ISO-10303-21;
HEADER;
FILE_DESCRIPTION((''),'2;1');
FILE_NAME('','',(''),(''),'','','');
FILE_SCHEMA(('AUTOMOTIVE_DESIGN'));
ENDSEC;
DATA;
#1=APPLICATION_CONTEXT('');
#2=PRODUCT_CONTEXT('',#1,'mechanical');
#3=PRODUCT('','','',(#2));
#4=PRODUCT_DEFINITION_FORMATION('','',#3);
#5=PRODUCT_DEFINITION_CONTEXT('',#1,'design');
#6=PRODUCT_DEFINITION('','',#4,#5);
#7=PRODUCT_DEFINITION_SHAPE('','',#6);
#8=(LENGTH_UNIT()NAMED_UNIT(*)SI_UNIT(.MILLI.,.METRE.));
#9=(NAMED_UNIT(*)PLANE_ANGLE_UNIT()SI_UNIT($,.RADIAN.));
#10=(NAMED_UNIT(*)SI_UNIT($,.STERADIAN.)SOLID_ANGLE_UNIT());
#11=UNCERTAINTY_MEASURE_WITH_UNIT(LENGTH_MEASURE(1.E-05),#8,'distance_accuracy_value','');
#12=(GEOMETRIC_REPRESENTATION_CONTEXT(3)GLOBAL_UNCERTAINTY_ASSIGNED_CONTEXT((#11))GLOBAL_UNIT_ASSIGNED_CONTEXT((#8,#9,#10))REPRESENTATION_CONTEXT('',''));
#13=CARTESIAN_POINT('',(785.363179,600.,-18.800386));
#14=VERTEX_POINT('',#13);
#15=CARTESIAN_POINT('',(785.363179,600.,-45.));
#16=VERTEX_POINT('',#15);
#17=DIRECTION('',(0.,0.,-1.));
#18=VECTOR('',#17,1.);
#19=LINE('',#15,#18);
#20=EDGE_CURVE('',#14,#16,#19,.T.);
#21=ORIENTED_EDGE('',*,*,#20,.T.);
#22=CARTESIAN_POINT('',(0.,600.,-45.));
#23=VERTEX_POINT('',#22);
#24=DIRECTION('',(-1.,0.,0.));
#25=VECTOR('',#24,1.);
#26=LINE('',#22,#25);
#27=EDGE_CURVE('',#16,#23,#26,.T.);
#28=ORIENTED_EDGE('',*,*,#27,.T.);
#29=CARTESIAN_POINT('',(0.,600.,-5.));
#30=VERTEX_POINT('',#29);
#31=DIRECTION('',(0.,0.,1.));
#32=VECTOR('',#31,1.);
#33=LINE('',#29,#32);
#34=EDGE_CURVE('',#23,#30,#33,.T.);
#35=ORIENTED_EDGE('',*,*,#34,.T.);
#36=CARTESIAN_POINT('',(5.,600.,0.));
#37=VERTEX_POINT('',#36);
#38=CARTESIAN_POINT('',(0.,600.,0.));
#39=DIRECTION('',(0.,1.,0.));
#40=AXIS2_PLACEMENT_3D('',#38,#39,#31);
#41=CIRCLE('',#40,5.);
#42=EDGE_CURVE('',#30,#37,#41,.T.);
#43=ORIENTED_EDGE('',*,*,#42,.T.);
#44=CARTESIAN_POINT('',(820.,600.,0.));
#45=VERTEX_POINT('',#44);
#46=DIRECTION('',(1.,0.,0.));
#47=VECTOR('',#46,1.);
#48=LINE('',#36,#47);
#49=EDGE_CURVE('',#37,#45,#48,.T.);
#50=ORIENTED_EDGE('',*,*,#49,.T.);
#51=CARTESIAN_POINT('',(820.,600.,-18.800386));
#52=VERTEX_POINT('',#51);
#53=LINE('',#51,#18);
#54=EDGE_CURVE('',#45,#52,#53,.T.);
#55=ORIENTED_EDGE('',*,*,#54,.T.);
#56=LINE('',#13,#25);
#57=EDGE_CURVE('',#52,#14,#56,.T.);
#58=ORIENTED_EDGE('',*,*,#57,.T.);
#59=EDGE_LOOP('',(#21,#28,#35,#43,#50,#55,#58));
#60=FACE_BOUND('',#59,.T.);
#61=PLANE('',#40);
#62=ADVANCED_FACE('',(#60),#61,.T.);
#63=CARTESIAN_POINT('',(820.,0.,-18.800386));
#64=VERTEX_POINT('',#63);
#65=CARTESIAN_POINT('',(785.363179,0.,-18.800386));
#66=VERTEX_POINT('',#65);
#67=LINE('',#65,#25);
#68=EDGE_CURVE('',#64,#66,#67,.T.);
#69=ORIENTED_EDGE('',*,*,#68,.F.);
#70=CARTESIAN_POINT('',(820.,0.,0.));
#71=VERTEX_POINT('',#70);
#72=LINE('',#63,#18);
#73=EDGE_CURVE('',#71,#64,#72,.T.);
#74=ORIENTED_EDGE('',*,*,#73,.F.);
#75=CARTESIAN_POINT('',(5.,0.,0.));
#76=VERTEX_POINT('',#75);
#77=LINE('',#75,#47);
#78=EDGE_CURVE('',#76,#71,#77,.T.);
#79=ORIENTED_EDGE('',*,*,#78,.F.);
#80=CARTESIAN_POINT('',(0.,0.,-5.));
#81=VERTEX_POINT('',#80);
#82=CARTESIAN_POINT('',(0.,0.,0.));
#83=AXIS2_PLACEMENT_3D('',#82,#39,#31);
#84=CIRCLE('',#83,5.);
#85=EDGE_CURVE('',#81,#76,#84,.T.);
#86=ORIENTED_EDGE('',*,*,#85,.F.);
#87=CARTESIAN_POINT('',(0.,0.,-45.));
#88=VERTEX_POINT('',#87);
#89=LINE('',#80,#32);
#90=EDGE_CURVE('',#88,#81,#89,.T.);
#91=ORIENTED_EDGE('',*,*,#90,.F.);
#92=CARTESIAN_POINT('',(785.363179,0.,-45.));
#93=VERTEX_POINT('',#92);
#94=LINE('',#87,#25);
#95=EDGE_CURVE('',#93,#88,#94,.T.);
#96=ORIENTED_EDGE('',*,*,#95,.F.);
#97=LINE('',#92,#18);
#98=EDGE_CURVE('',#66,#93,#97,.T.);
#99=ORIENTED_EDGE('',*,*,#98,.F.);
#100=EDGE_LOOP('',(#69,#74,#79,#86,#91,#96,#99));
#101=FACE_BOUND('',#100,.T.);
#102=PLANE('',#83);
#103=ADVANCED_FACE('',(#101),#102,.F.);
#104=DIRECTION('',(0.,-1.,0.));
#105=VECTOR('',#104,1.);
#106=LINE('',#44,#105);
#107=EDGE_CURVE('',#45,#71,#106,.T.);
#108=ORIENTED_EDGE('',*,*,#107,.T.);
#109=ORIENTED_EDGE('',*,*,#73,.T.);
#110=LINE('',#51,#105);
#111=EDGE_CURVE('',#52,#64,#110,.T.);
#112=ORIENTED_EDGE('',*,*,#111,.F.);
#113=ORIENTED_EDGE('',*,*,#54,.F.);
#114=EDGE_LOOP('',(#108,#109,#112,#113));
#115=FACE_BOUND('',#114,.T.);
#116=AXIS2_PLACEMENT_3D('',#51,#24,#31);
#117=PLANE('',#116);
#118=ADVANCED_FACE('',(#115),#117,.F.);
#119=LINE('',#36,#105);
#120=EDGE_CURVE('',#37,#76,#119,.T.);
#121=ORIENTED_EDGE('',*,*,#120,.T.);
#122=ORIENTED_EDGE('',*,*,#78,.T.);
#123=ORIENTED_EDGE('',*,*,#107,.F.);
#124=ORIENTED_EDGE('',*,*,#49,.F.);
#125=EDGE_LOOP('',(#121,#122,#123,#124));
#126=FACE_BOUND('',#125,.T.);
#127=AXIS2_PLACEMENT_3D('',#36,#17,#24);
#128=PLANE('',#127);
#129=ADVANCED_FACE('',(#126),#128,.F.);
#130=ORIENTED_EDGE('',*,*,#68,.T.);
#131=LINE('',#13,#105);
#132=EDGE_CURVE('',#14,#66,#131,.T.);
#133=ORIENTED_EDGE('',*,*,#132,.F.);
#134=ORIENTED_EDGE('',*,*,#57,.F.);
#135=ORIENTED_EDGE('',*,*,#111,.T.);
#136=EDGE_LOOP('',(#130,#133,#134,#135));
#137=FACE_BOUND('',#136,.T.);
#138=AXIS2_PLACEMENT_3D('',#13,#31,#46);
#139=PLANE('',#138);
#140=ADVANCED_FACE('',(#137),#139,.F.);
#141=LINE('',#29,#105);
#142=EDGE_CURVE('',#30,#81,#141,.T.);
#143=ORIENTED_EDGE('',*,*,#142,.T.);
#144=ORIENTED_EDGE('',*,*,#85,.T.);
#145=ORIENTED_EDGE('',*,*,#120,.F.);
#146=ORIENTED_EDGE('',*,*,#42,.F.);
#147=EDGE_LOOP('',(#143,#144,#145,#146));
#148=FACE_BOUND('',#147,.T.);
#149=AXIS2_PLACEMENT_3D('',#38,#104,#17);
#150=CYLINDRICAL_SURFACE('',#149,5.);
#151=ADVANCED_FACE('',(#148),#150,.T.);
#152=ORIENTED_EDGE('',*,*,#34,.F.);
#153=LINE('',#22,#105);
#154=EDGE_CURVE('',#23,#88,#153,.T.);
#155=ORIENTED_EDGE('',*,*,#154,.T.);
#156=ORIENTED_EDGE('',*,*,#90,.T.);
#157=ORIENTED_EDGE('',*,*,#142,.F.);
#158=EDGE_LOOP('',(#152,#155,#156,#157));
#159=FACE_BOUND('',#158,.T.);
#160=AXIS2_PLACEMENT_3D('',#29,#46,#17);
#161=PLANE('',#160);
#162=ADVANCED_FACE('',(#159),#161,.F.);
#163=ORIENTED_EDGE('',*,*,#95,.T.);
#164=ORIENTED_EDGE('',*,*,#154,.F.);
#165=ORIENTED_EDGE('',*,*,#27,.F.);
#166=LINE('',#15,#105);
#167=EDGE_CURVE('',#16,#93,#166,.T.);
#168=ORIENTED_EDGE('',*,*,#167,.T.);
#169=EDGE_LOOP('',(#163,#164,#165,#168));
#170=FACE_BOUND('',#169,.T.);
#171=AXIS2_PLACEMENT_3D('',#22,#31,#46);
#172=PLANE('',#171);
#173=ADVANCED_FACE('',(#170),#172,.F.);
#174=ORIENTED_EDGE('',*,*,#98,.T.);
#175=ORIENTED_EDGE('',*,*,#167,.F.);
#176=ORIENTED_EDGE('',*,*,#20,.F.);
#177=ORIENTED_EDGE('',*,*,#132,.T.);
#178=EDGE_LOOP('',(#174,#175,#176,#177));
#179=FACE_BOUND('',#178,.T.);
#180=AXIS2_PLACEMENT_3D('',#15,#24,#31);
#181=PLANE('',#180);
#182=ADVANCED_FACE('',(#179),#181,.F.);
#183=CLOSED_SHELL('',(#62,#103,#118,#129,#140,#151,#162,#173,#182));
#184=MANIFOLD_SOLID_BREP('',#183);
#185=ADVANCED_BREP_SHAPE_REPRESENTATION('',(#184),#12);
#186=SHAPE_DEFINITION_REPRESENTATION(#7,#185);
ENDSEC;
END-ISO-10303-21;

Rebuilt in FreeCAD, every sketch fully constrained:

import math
import FreeCAD as App
import Part
import Sketcher
from FreeCAD import Vector
Q = App.Units.Quantity

doc = App.newDocument("Part")
body = doc.addObject("PartDesign::Body", "Body")

# Sketch on XZ plane
sketch1 = body.newObject("Sketcher::SketchObject", "Sketch")
sketch1.AttachmentSupport = (doc.getObject("XZ_Plane"), [""])
sketch1.MapMode = "FlatFace"
sketch1.addGeometry(Part.LineSegment(Vector(5, 0, 0), Vector(820, 0, 0)), False)
sketch1.addGeometry(Part.LineSegment(Vector(820, 0, 0), Vector(820, -19, 0)), False)
sketch1.addGeometry(Part.LineSegment(Vector(820, -19, 0), Vector(785, -19, 0)), False)
sketch1.addGeometry(Part.LineSegment(Vector(785, -19, 0), Vector(785, -45, 0)), False)
sketch1.addGeometry(Part.LineSegment(Vector(785, -45, 0), Vector(0, -45, 0)), False)
sketch1.addGeometry(Part.LineSegment(Vector(0, -45, 0), Vector(0, -5, 0)), False)
sketch1.addGeometry(Part.ArcOfCircle(Part.Circle(Vector(0, 0, 0), Vector(0, 0, 1), 5), math.radians(0), math.radians(270)), False)
sketch1.addConstraint(Sketcher.Constraint("Coincident", 0, 2, 1, 1))
sketch1.addConstraint(Sketcher.Constraint("Coincident", 1, 2, 2, 1))
sketch1.addConstraint(Sketcher.Constraint("Coincident", 2, 2, 3, 1))
sketch1.addConstraint(Sketcher.Constraint("Coincident", 3, 2, 4, 1))
sketch1.addConstraint(Sketcher.Constraint("Coincident", 4, 2, 5, 1))
sketch1.addConstraint(Sketcher.Constraint("Coincident", 5, 2, 6, 2))
sketch1.addConstraint(Sketcher.Constraint("Coincident", 6, 1, 0, 1))
sketch1.addConstraint(Sketcher.Constraint("Horizontal", 0))
sketch1.addConstraint(Sketcher.Constraint("Vertical", 1))
sketch1.addConstraint(Sketcher.Constraint("Horizontal", 2))
sketch1.addConstraint(Sketcher.Constraint("Vertical", 3))
sketch1.addConstraint(Sketcher.Constraint("Horizontal", 4))
sketch1.addConstraint(Sketcher.Constraint("Vertical", 5))
sketch1.addConstraint(Sketcher.Constraint("Coincident", 6, 3, -1, 1))
sketch1.addConstraint(Sketcher.Constraint("PointOnObject", 0, 2, -1))
sketch1.addConstraint(Sketcher.Constraint("PointOnObject", 4, 2, -2))
sketch1.addConstraint(Sketcher.Constraint("Radius", 6, Q("5 mm")))
sketch1.addConstraint(Sketcher.Constraint("DistanceX", 0, 1, 0, 2, Q("815 mm")))
sketch1.addConstraint(Sketcher.Constraint("DistanceY", 5, 1, 5, 2, Q("40 mm")))
sketch1.addConstraint(Sketcher.Constraint("DistanceX", 2, 2, 2, 1, Q("34.636821 mm")))
sketch1.addConstraint(Sketcher.Constraint("DistanceY", 1, 2, 1, 1, Q("18.800386 mm")))
pad1 = body.newObject("PartDesign::Pad", "Pad")
pad1.Profile = sketch1
pad1.Length = 600
pad1.Reversed = True

doc.recompute()
